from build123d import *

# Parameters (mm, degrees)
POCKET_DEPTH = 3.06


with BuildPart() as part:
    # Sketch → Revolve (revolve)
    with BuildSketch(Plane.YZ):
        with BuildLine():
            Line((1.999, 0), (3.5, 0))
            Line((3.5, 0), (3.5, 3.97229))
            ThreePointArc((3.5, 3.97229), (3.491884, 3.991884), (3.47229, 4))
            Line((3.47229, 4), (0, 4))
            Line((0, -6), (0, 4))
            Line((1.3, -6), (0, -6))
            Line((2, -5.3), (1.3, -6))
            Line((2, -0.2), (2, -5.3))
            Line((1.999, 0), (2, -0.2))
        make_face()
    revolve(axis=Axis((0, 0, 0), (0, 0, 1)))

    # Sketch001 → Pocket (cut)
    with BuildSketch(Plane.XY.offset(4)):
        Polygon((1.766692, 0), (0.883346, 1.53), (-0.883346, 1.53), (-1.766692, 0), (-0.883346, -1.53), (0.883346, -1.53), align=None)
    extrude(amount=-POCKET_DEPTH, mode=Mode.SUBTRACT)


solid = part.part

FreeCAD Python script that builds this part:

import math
import FreeCAD as App
import Part
import Sketcher

V = App.Vector
Q = App.Units.Quantity

doc = App.newDocument("Part")
body = doc.addObject("PartDesign::Body", "Body")

sketch1 = body.newObject("Sketcher::SketchObject", "Sketch")
sketch1.AttachmentSupport = (doc.getObject("YZ_Plane"), [""])
sketch1.MapMode = "FlatFace"
sketch1.addGeometry([
    Part.LineSegment(V(1.999, 0, 0), V(3.5, 0, 0)),
    Part.LineSegment(V(3.5, 0, 0), V(3.5, 3.97229, 0)),
    Part.ArcOfCircle(Part.Circle(V(3.47229, 3.97229, 0), V(0, 0, 1), 0.02771), math.radians(-0.000502), math.radians(90.000502)),
    Part.LineSegment(V(3.47229, 4, 0), V(0, 4, 0)),
    Part.LineSegment(V(0, 4, 0), V(0, -6, 0)),
    Part.LineSegment(V(0, -6, 0), V(1.3, -6, 0)),
    Part.LineSegment(V(1.3, -6, 0), V(2, -5.3, 0)),
    Part.LineSegment(V(2, -5.3, 0), V(2, -0.2, 0)),
    Part.LineSegment(V(2, -0.2, 0), V(1.999, 0, 0)),
], False)
sketch1.addConstraint([
    Sketcher.Constraint("Coincident", 0, 2, 1, 1),
    Sketcher.Constraint("Coincident", 1, 2, 2, 1),
    Sketcher.Constraint("Coincident", 2, 2, 3, 1),
    Sketcher.Constraint("Coincident", 3, 2, 4, 1),
    Sketcher.Constraint("Coincident", 4, 2, 5, 1),
    Sketcher.Constraint("Coincident", 5, 2, 6, 1),
    Sketcher.Constraint("Coincident", 6, 2, 7, 1),
    Sketcher.Constraint("Coincident", 7, 2, 8, 1),
    Sketcher.Constraint("Coincident", 8, 2, 0, 1),
    Sketcher.Constraint("Horizontal", 0),
    Sketcher.Constraint("Vertical", 1),
    Sketcher.Constraint("Horizontal", 3),
    Sketcher.Constraint("Vertical", 4),
    Sketcher.Constraint("Horizontal", 5),
    Sketcher.Constraint("Vertical", 7),
    Sketcher.Constraint("PointOnObject", 0, 2, -1),
    Sketcher.Constraint("PointOnObject", 3, 2, -2),
    Sketcher.Constraint("Horizontal", 2, 3, 1, 2),
    Sketcher.Constraint("DistanceY", 4, 2, 4, 1, Q("10 mm")),
    Sketcher.Constraint("Angle", 6, Q("45 deg")),
    Sketcher.Constraint("DistanceX", 5, 1, 5, 2, Q("1.3 mm")),
    Sketcher.Constraint("DistanceY", 7, 1, 7, 2, Q("5.1 mm")),
    Sketcher.Constraint("DistanceY", -1, 1, 2, 2, Q("4 mm")),
    Sketcher.Constraint("DistanceX", -1, 1, 6, 2, Q("2 mm")),
    Sketcher.Constraint("DistanceX", -1, 1, 0, 2, Q("3.5 mm")),
    Sketcher.Constraint("DistanceX", 0, 1, 0, 2, Q("1.501 mm")),
    Sketcher.Constraint("Radius", 2, Q("0.02771 mm")),
    Sketcher.Constraint("DistanceX", 3, 2, 3, 1, Q("3.47229 mm")),
])
revolution = body.newObject("PartDesign::Revolution", "Revolution")
revolution.Profile = sketch1
revolution.ReferenceAxis = (sketch1, ["V_Axis"])
revolution.Angle = 360

sketch2 = body.newObject("Sketcher::SketchObject", "Sketch001")
sketch2.AttachmentSupport = (doc.getObject("XY_Plane"), [""])
sketch2.MapMode = "FlatFace"
sketch2.AttachmentOffset = App.Placement(V(0, 0, 4), App.Rotation())
sketch2.addGeometry([
    Part.LineSegment(V(1.766692, 0, 0), V(0.883346, 1.53, 0)),
    Part.LineSegment(V(0.883346, 1.53, 0), V(-0.883346, 1.53, 0)),
    Part.LineSegment(V(-0.883346, 1.53, 0), V(-1.766692, 0, 0)),
    Part.LineSegment(V(-1.766692, 0, 0), V(-0.883346, -1.53, 0)),
    Part.LineSegment(V(-0.883346, -1.53, 0), V(0.883346, -1.53, 0)),
    Part.LineSegment(V(0.883346, -1.53, 0), V(1.766692, 0, 0)),
], False)
sketch2.addConstraint([
    Sketcher.Constraint("Coincident", 0, 2, 1, 1),
    Sketcher.Constraint("Coincident", 1, 2, 2, 1),
    Sketcher.Constraint("Coincident", 2, 2, 3, 1),
    Sketcher.Constraint("Coincident", 3, 2, 4, 1),
    Sketcher.Constraint("Coincident", 4, 2, 5, 1),
    Sketcher.Constraint("Coincident", 5, 2, 0, 1),
    Sketcher.Constraint("Horizontal", 1),
    Sketcher.Constraint("Horizontal", 4),
    Sketcher.Constraint("Symmetric", 0, 2, 3, 2, -1, 1),
    Sketcher.Constraint("Symmetric", 2, 2, 5, 2, -1, 1),
    Sketcher.Constraint("PointOnObject", 2, 2, -1),
    Sketcher.Constraint("Parallel", 2, 5),
    Sketcher.Constraint("Vertical", 1, 2, 3, 2),
    Sketcher.Constraint("Angle", 0, Q("120.000002 deg")),
    Sketcher.Constraint("DistanceY", -1, 1, 0, 2, Q("1.53 mm")),
    Sketcher.Constraint("DistanceX", 1, 2, 1, 1, Q("1.766692 mm")),
])
pocket1 = body.newObject("PartDesign::Pocket", "Pocket")
pocket1.Profile = sketch2
pocket1.Length = 3.06

doc.recompute()
